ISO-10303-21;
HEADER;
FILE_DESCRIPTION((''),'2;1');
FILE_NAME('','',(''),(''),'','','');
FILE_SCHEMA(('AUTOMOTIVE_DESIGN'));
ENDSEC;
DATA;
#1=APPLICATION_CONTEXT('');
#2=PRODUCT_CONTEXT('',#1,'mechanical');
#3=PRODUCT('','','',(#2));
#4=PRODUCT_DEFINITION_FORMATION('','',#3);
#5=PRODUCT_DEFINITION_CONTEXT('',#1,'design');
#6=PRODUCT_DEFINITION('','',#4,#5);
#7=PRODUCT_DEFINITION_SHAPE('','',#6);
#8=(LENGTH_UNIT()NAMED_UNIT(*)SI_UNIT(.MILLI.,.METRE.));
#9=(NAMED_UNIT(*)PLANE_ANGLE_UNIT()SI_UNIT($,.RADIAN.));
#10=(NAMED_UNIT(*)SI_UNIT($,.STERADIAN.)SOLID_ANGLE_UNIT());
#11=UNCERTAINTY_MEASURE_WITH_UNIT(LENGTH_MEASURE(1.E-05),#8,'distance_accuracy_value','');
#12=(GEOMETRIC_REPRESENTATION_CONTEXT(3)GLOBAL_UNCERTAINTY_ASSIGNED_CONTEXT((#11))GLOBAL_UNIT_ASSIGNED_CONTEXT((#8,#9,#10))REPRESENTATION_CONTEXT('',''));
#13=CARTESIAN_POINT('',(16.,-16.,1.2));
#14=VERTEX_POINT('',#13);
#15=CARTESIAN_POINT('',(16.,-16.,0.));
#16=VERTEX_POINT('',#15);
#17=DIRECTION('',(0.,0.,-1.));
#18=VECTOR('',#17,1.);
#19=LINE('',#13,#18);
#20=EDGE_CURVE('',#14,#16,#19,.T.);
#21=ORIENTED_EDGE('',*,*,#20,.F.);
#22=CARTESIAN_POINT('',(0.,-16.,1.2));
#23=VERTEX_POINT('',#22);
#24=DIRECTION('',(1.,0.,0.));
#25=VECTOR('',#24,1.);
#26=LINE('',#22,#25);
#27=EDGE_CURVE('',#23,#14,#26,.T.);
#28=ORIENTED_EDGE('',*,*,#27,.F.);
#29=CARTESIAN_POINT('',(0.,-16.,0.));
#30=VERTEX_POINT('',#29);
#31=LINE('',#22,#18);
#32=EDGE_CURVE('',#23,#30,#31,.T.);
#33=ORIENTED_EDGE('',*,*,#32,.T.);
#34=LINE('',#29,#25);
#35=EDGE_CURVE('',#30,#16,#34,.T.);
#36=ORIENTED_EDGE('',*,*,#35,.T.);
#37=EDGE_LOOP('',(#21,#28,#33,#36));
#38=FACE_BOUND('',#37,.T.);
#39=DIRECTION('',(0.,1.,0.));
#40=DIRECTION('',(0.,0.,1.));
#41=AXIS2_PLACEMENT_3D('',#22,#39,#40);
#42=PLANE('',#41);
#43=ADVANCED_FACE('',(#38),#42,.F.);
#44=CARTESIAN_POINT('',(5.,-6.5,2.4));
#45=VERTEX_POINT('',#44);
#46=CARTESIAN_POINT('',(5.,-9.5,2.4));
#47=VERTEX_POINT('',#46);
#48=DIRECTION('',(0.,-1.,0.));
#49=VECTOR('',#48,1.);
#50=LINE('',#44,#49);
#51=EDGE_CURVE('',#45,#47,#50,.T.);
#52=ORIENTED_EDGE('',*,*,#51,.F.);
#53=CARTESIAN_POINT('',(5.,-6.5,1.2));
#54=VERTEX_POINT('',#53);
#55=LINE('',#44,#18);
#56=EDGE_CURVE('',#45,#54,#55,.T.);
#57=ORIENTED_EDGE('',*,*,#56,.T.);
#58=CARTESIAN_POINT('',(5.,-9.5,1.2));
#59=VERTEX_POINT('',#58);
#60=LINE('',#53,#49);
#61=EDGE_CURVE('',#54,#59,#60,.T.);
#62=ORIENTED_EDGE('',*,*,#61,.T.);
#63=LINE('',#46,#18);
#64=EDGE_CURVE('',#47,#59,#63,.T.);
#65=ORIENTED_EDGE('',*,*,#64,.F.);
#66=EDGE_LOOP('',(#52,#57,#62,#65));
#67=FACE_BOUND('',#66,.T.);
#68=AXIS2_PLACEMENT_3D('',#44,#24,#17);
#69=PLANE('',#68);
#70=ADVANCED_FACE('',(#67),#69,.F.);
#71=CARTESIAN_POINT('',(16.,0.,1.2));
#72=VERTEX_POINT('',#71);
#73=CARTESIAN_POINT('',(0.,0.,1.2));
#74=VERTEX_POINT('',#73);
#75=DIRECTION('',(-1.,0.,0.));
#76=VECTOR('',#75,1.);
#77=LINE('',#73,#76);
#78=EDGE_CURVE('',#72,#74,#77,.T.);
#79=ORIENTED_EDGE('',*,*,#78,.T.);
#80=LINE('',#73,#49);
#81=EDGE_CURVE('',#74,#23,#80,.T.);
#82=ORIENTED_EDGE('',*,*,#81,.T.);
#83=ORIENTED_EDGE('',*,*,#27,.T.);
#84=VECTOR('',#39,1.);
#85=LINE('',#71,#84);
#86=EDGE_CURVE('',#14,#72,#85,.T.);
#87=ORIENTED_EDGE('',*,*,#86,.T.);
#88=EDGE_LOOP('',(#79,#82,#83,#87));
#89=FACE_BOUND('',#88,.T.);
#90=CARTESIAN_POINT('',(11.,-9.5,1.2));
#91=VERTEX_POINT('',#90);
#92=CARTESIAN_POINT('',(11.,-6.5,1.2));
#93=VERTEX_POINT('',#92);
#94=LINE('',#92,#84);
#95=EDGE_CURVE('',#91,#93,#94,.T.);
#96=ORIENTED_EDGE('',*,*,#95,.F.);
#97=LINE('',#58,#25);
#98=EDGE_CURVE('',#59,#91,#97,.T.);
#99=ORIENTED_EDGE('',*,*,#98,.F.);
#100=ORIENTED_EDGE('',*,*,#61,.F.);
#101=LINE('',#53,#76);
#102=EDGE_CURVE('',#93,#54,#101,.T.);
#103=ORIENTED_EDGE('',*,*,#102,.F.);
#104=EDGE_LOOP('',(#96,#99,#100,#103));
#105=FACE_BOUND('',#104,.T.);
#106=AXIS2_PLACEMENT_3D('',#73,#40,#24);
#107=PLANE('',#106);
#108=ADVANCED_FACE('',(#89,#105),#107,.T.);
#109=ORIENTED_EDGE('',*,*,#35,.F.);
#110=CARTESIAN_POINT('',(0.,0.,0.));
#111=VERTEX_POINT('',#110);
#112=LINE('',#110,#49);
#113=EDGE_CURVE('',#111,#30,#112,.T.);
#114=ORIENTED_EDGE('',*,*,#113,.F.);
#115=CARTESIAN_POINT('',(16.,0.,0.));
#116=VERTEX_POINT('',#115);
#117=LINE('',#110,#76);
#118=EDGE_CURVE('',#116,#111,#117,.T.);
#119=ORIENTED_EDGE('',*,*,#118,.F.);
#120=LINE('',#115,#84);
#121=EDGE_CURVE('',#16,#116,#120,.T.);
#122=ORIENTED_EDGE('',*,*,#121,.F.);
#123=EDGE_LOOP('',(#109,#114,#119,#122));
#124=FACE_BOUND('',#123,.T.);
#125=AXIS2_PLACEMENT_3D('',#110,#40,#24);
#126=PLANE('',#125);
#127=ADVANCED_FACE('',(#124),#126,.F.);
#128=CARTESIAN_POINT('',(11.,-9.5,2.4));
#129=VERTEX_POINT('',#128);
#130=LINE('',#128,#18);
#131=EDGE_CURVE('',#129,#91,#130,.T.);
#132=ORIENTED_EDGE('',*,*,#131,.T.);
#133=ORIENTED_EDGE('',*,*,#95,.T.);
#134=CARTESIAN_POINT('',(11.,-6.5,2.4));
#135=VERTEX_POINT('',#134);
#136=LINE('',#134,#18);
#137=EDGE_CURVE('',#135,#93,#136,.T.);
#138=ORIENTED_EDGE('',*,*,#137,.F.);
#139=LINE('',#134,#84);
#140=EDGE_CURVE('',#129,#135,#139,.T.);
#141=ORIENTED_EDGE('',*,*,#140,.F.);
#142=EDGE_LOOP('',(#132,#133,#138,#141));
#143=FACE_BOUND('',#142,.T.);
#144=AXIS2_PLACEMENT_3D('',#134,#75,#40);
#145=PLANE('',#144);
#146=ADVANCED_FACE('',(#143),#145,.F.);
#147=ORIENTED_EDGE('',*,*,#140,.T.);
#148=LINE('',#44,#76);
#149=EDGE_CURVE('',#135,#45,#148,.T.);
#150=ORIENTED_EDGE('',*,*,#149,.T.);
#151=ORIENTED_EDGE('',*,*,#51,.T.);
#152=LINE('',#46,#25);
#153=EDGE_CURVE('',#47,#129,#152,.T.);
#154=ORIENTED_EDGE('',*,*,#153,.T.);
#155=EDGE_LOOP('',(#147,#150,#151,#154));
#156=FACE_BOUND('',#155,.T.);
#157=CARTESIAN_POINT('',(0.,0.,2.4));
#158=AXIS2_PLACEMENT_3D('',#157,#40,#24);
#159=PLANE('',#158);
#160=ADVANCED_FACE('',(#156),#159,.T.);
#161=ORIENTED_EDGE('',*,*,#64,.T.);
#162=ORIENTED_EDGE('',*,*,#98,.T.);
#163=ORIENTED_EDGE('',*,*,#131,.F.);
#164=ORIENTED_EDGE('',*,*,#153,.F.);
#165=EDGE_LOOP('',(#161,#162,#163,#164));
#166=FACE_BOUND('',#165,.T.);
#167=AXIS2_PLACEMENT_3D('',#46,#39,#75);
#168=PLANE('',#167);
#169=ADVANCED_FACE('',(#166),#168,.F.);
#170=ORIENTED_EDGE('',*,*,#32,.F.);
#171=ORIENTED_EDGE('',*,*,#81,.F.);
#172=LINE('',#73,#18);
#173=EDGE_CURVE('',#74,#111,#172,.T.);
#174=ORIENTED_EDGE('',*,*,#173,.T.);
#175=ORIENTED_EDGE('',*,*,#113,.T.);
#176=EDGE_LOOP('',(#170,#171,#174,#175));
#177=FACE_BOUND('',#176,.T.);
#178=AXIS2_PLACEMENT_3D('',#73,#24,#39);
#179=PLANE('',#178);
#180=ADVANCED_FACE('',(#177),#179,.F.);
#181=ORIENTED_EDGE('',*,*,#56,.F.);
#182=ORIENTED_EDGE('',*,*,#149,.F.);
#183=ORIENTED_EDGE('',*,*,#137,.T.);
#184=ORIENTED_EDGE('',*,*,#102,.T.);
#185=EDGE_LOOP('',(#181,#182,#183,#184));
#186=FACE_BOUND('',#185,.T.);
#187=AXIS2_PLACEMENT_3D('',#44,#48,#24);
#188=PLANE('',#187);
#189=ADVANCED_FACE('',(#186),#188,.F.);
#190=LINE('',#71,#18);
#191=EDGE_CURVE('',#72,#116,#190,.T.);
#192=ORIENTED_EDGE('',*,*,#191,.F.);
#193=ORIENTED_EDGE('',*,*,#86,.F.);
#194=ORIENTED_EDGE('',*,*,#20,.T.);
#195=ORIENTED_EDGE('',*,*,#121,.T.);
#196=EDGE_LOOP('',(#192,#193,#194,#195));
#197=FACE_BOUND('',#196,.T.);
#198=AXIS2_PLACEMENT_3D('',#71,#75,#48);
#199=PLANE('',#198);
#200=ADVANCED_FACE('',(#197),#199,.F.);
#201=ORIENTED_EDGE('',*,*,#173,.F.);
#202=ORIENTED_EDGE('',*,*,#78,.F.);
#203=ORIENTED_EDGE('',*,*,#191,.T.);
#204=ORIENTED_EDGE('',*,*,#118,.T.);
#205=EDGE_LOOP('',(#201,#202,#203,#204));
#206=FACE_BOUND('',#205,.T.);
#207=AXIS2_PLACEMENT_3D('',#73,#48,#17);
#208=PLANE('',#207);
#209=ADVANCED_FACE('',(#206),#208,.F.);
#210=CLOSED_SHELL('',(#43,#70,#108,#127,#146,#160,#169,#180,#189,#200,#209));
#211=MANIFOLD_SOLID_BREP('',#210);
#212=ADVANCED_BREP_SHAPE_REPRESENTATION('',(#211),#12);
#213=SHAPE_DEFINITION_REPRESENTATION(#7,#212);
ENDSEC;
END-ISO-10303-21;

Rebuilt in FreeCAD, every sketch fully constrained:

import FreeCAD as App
import Part
import Sketcher
from FreeCAD import Vector

doc = App.newDocument("Part")
body = doc.addObject("PartDesign::Body", "Body")

# Sketch on XY plane
sketch1 = body.newObject("Sketcher::SketchObject", "Sketch")
sketch1.AttachmentSupport = (doc.getObject("XY_Plane"), [""])
sketch1.MapMode = "FlatFace"
sketch1.addGeometry(Part.LineSegment(Vector(0, 0, 0), Vector(0, -16, 0)), False)
sketch1.addGeometry(Part.LineSegment(Vector(0, -16, 0), Vector(16, -16, 0)), False)
sketch1.addGeometry(Part.LineSegment(Vector(16, -16, 0), Vector(16, 0, 0)), False)
sketch1.addGeometry(Part.LineSegment(Vector(16, 0, 0), Vector(0, 0, 0)), False)
sketch1.addConstraint(Sketcher.Constraint("Coincident", 0, 2, 1, 1))
sketch1.addConstraint(Sketcher.Constraint("Coincident", 1, 2, 2, 1))
sketch1.addConstraint(Sketcher.Constraint("Coincident", 2, 2, 3, 1))
sketch1.addConstraint(Sketcher.Constraint("Coincident", 3, 2, 0, 1))
sketch1.addConstraint(Sketcher.Constraint("Vertical", 0))
sketch1.addConstraint(Sketcher.Constraint("Horizontal", 1))
sketch1.addConstraint(Sketcher.Constraint("Vertical", 2))
sketch1.addConstraint(Sketcher.Constraint("Horizontal", 3))
sketch1.addConstraint(Sketcher.Constraint("Coincident", 3, 2, -1, 1))
sketch1.addConstraint(Sketcher.Constraint("Equal", 3, 0))
sketch1.addConstraint(Sketcher.Constraint("DistanceX", 1, 1, 1, 2, 16.0))
pad1 = body.newObject("PartDesign::Pad", "Pad")
pad1.Profile = sketch1
pad1.Length = 1.2

# Sketch on XY plane
sketch2 = body.newObject("Sketcher::SketchObject", "Sketch001")
sketch2.AttachmentSupport = (doc.getObject("XY_Plane"), [""])
sketch2.MapMode = "FlatFace"
sketch2.AttachmentOffset = App.Placement(Vector(0, 0, 1.2), App.Rotation())
sketch2.addGeometry(Part.LineSegment(Vector(5, -6.5, 0), Vector(5, -9.5, 0)), False)
sketch2.addGeometry(Part.LineSegment(Vector(5, -9.5, 0), Vector(11, -9.5, 0)), False)
sketch2.addGeometry(Part.LineSegment(Vector(11, -9.5, 0), Vector(11, -6.5, 0)), False)
sketch2.addGeometry(Part.LineSegment(Vector(11, -6.5, 0), Vector(5, -6.5, 0)), False)
sketch2.addConstraint(Sketcher.Constraint("Coincident", 0, 2, 1, 1))
sketch2.addConstraint(Sketcher.Constraint("Coincident", 1, 2, 2, 1))
sketch2.addConstraint(Sketcher.Constraint("Coincident", 2, 2, 3, 1))
sketch2.addConstraint(Sketcher.Constraint("Coincident", 3, 2, 0, 1))
sketch2.addConstraint(Sketcher.Constraint("Vertical", 0))
sketch2.addConstraint(Sketcher.Constraint("Horizontal", 1))
sketch2.addConstraint(Sketcher.Constraint("Vertical", 2))
sketch2.addConstraint(Sketcher.Constraint("Horizontal", 3))
sketch2.addConstraint(Sketcher.Constraint("DistanceX", 1, 1, 1, 2, 6.0))
sketch2.addConstraint(Sketcher.Constraint("DistanceY", 0, 2, 0, 1, 3.0))
sketch2.addConstraint(Sketcher.Constraint("DistanceX", -1, 1, 0, 2, 5.0))
sketch2.addConstraint(Sketcher.Constraint("DistanceY", 0, 2, -1, 1, 9.5))
pad2 = body.newObject("PartDesign::Pad", "Pad001")
pad2.Profile = sketch2
pad2.Length = 1.2

doc.recompute()
